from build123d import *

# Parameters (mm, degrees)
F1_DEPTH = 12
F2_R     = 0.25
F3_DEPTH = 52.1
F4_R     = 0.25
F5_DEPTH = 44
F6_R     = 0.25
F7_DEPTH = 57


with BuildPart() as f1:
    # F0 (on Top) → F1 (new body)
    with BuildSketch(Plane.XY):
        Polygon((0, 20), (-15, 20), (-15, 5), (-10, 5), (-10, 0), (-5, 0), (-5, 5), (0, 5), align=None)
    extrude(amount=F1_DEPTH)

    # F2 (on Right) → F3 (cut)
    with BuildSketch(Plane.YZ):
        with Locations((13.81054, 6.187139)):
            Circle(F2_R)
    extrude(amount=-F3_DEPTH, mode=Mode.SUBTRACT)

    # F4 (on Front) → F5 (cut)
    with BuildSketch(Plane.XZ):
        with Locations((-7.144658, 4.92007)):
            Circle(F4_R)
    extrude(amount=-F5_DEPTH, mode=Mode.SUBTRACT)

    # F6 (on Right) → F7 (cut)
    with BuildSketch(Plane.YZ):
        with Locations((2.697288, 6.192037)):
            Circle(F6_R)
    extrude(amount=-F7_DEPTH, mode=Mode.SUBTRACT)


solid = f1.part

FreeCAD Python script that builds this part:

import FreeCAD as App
import Part
import Sketcher

V = App.Vector


def add_polygon(sketch, points):
    """Adds a closed chain of lines whose ends are joined by coincident constraints."""
    first, n = sketch.GeometryCount, len(points)
    for a, b in zip(points, points[1:] + points[:1]):
        sketch.addGeometry(Part.LineSegment(App.Vector(*a, 0), App.Vector(*b, 0)), False)
    for i in range(n):
        sketch.addConstraint(Sketcher.Constraint("Coincident", first + i, 2, first + (i + 1) % n, 1))

doc = App.newDocument("Part")
params = doc.addObject("Spreadsheet::Sheet", "Params")
for row, (alias, value) in enumerate([
    ("sketch1_width", "15 mm"),
    ("pad1_length", "12 mm"),
    ("sketch2_diameter", "0.5 mm"),
    ("pocket1_length", "52.1 mm"),
    ("sketch3_diameter", "0.5 mm"),
    ("pocket2_length", "44 mm"),
    ("sketch4_diameter", "0.5 mm"),
    ("pocket3_length", "57 mm"),
], start=1):
    params.set(f"A{row}", alias)
    params.set(f"B{row}", "=" + value)
    params.setAlias(f"B{row}", alias)

body = doc.addObject("PartDesign::Body", "Body")

# Sketch on XY plane
sketch1 = body.newObject("Sketcher::SketchObject", "Sketch")
sketch1.AttachmentSupport = (doc.getObject("XY_Plane"), [""])
sketch1.MapMode = "FlatFace"
add_polygon(sketch1, [(0, 20), (-15, 20), (-15, 5), (-10, 5), (-10, 0), (-5, 0), (-5, 5), (0, 5)])  # lines 0-7
sketch1.addConstraint([
    Sketcher.Constraint("Horizontal", 0),
    Sketcher.Constraint("Vertical", 1),
    Sketcher.Constraint("Horizontal", 2),
    Sketcher.Constraint("Vertical", 3),
    Sketcher.Constraint("Horizontal", 4),
    Sketcher.Constraint("Vertical", 5),
    Sketcher.Constraint("Horizontal", 6),
    Sketcher.Constraint("Vertical", 7),
    Sketcher.Constraint("PointOnObject", 3, 2, -1),
    Sketcher.Constraint("PointOnObject", 6, 2, -2),
    Sketcher.Constraint("Horizontal", 2, 2, 5, 2),
    Sketcher.Constraint("Equal", 2, 4),
    Sketcher.Constraint("Equal", 4, 6),
    Sketcher.Constraint("Equal", 0, 1),
    Sketcher.Constraint("Equal", 6, 3),
    Sketcher.Constraint("DistanceX", 0, 2, 0, 1, 15.0),
])
sketch1.setExpression("Constraints[23]", "Params.sketch1_width")
pad1 = body.newObject("PartDesign::Pad", "Pad")
pad1.Profile = sketch1
pad1.setExpression("Length", "Params.pad1_length")

# Sketch on YZ plane
sketch2 = body.newObject("Sketcher::SketchObject", "Sketch001")
sketch2.AttachmentSupport = (doc.getObject("YZ_Plane"), [""])
sketch2.MapMode = "FlatFace"
sketch2.addGeometry(Part.Circle(V(13.81, 6.19, 0), V(0, 0, 1), 0.25), False)
sketch2.addConstraint([
    Sketcher.Constraint("Diameter", 0, 0.5),
    Sketcher.Constraint("DistanceX", -1, 1, 0, 3, 13.81054),
    Sketcher.Constraint("DistanceY", -1, 1, 0, 3, 6.187139),
])
sketch2.setExpression("Constraints[0]", "Params.sketch2_diameter")
pocket1 = body.newObject("PartDesign::Pocket", "Pocket")
pocket1.Profile = sketch2
pocket1.setExpression("Length", "Params.pocket1_length")

# Sketch on XZ plane
sketch3 = body.newObject("Sketcher::SketchObject", "Sketch002")
sketch3.AttachmentSupport = (doc.getObject("XZ_Plane"), [""])
sketch3.MapMode = "FlatFace"
sketch3.addGeometry(Part.Circle(V(-7.14, 4.92, 0), V(0, 0, 1), 0.25), False)
sketch3.addConstraint([
    Sketcher.Constraint("Diameter", 0, 0.5),
    Sketcher.Constraint("DistanceY", -1, 1, 0, 3, 4.92007),
    Sketcher.Constraint("DistanceX", 0, 3, -1, 1, 7.144658),
])
sketch3.setExpression("Constraints[0]", "Params.sketch3_diameter")
pocket2 = body.newObject("PartDesign::Pocket", "Pocket001")
pocket2.Profile = sketch3
pocket2.setExpression("Length", "Params.pocket2_length")

# Sketch on YZ plane
sketch4 = body.newObject("Sketcher::SketchObject", "Sketch003")
sketch4.AttachmentSupport = (doc.getObject("YZ_Plane"), [""])
sketch4.MapMode = "FlatFace"
sketch4.addGeometry(Part.Circle(V(2.7, 6.19, 0), V(0, 0, 1), 0.25), False)
sketch4.addConstraint([
    Sketcher.Constraint("Diameter", 0, 0.5),
    Sketcher.Constraint("DistanceX", -1, 1, 0, 3, 2.697288),
    Sketcher.Constraint("DistanceY", -1, 1, 0, 3, 6.192037),
])
sketch4.setExpression("Constraints[0]", "Params.sketch4_diameter")
pocket3 = body.newObject("PartDesign::Pocket", "Pocket002")
pocket3.Profile = sketch4
pocket3.setExpression("Length", "Params.pocket3_length")

doc.recompute()
